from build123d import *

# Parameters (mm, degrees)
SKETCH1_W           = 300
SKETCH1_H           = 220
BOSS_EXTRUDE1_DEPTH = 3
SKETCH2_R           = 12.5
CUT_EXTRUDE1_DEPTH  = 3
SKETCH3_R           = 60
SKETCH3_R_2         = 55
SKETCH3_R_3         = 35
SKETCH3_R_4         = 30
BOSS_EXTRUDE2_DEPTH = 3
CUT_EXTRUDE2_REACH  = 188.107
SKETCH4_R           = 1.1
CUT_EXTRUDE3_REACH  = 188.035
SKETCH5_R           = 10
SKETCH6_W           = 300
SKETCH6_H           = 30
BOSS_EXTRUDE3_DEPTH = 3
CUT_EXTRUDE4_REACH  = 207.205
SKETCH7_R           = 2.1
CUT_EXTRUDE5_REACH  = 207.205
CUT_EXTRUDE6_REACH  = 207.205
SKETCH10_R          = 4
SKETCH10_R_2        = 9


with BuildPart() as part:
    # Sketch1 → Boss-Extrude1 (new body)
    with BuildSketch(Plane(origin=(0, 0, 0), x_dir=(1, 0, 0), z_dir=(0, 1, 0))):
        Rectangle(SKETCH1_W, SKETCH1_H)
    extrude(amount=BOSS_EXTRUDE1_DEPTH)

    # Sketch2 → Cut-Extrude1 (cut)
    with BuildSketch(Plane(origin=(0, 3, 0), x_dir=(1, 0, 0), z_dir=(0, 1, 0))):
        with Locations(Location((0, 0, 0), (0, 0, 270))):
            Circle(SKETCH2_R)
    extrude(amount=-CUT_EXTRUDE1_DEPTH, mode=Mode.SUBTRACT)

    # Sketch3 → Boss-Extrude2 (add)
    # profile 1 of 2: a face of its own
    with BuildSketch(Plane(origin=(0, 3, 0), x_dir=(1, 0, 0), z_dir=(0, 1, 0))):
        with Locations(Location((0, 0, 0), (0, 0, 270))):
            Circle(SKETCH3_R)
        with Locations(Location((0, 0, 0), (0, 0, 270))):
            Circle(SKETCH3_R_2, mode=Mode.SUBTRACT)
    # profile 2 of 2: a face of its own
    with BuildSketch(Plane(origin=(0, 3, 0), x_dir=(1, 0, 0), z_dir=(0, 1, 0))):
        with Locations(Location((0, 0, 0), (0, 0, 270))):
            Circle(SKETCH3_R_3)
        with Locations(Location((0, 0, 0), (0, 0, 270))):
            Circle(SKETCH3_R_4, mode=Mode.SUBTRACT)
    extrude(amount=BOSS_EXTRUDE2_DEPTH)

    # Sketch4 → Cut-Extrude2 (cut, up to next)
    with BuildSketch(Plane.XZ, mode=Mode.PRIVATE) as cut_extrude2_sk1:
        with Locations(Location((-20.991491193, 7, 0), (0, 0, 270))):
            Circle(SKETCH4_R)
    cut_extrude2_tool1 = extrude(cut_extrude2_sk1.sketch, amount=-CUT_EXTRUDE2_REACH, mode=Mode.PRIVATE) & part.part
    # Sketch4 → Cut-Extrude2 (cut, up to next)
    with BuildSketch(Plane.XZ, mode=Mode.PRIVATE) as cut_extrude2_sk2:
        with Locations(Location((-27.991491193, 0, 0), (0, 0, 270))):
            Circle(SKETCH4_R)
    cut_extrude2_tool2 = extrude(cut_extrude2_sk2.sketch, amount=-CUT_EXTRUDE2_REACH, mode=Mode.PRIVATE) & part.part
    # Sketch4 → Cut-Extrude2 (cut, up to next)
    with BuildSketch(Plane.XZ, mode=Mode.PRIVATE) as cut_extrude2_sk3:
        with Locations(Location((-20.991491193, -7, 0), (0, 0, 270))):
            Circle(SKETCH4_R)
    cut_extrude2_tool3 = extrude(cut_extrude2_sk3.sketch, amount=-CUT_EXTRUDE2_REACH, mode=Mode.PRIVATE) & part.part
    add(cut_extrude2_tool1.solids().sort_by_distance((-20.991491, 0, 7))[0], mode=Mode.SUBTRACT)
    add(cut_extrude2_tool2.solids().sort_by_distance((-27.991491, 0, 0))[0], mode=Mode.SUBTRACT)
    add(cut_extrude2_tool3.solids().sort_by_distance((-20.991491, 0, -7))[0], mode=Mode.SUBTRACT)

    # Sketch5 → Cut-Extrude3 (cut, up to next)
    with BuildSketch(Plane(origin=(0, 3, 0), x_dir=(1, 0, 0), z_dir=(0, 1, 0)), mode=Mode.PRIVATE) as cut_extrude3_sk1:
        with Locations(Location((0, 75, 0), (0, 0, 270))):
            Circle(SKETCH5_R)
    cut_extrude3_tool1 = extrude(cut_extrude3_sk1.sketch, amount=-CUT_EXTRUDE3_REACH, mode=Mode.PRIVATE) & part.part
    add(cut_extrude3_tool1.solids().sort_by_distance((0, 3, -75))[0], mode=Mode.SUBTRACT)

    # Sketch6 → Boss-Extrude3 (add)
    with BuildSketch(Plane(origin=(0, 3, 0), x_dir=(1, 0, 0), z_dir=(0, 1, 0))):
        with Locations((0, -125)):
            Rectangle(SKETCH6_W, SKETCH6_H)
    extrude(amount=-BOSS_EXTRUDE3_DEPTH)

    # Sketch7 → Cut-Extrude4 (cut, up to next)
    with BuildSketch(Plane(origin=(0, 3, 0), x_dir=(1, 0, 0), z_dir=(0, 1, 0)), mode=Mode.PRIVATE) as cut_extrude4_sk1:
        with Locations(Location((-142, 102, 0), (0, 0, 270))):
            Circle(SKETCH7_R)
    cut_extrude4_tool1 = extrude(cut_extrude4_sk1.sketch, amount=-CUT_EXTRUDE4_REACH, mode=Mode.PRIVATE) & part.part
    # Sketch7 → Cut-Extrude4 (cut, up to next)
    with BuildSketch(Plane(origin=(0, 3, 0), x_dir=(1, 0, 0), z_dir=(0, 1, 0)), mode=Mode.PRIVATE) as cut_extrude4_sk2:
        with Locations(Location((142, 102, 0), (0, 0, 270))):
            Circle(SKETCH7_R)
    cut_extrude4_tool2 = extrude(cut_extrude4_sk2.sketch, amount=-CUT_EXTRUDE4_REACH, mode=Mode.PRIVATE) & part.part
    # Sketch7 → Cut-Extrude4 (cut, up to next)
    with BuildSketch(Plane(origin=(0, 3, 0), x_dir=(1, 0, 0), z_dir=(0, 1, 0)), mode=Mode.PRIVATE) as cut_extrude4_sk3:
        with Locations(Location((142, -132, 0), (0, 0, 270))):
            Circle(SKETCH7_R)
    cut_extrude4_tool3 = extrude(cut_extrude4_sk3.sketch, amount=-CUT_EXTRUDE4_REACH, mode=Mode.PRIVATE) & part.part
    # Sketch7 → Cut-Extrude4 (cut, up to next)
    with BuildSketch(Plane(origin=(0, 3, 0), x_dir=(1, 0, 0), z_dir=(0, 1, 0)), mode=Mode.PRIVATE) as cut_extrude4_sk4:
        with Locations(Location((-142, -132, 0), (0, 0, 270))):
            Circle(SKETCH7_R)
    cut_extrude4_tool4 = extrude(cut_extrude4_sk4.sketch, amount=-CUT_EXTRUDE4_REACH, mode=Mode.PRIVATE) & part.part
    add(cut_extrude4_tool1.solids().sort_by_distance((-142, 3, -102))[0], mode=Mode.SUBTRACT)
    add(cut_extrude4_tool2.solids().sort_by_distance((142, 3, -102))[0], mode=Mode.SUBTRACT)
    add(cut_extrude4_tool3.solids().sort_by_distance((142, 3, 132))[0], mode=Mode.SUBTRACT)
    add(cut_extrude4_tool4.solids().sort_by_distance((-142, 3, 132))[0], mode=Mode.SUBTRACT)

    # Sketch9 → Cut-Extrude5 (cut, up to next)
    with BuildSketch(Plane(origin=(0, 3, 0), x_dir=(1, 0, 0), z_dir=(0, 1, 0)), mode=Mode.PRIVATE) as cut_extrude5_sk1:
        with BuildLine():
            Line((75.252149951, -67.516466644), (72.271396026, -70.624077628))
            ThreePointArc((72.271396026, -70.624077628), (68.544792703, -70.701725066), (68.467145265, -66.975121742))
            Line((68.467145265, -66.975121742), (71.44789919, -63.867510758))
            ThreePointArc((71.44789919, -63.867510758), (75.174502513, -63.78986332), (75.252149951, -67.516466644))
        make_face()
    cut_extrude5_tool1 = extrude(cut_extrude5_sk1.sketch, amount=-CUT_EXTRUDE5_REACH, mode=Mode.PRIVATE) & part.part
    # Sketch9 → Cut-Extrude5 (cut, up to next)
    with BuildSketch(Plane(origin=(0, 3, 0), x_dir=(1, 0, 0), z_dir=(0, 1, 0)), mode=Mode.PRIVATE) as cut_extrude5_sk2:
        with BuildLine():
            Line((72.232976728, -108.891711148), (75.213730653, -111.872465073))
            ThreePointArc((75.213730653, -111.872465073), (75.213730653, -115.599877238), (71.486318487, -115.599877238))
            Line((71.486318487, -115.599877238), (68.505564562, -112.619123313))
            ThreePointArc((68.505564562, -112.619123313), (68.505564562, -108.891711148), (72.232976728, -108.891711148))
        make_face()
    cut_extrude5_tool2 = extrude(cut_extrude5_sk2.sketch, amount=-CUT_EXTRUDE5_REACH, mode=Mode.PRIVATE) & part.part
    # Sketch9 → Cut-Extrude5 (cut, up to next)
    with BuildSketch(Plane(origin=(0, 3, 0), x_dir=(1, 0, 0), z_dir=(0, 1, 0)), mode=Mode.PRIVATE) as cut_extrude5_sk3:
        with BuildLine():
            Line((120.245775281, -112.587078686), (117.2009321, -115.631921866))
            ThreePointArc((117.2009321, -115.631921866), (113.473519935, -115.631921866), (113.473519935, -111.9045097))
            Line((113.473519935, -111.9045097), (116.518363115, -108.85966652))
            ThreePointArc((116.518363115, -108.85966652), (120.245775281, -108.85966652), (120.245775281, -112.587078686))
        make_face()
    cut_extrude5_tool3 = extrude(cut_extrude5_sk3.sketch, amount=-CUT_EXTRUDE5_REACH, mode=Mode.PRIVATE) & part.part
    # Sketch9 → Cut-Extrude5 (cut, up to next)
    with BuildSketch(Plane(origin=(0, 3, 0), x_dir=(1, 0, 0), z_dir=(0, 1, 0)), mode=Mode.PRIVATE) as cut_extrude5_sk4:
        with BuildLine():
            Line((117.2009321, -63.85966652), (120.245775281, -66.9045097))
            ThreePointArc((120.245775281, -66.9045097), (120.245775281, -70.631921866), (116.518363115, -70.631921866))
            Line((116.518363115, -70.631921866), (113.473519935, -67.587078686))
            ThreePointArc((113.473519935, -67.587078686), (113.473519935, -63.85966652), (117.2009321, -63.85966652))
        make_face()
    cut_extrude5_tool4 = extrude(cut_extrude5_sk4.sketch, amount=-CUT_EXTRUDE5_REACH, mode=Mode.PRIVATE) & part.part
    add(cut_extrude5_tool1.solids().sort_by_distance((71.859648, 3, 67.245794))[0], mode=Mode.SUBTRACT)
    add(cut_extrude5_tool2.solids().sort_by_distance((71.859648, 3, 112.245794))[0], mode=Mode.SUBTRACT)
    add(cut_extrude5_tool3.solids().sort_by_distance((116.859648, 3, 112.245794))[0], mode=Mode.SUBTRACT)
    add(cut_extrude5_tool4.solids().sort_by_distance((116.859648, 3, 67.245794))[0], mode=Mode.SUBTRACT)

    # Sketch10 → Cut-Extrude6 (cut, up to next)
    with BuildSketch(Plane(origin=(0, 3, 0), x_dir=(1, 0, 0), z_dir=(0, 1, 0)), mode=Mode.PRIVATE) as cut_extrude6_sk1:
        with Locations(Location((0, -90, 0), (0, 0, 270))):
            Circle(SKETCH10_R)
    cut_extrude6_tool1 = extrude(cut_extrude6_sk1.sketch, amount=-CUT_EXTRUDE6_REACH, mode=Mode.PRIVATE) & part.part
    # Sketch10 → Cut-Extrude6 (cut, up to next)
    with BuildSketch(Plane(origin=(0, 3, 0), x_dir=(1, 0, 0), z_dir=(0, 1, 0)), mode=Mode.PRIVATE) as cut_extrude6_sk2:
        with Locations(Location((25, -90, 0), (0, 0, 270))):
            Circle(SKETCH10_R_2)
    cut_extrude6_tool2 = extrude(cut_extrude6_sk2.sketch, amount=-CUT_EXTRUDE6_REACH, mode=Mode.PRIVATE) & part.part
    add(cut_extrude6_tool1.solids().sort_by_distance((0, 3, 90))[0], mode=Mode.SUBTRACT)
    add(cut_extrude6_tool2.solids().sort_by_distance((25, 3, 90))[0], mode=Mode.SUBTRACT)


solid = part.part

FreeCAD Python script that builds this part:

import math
import FreeCAD as App
import Part
import Sketcher

V = App.Vector
Q = App.Units.Quantity

doc = App.newDocument("Part")
params = doc.addObject("Spreadsheet::Sheet", "Params")
for row, (alias, value) in enumerate([
    ("sketch1_width", "300 mm"),
    ("sketch1_height", "220 mm"),
    ("pad1_length", "3 mm"),
    ("sketch2_diameter", "25 mm"),
    ("pocket1_length", "3 mm"),
    ("sketch3_diameter", "120 mm"),
    ("sketch3_diameter2", "110 mm"),
    ("sketch3_diameter3", "70 mm"),
    ("sketch3_diameter4", "60 mm"),
    ("pad2_length", "3 mm"),
    ("sketch4_diameter", "2.2 mm"),
    ("sketch5_diameter", "2.2 mm"),
    ("sketch6_diameter", "2.2 mm"),
    ("sketch7_diameter", "20 mm"),
    ("sketch8_width", "300 mm"),
    ("sketch8_height", "30 mm"),
    ("pad3_length", "3 mm"),
    ("sketch9_diameter", "4.2 mm"),
    ("sketch10_diameter", "4.2 mm"),
    ("sketch11_diameter", "4.2 mm"),
    ("sketch12_diameter", "4.2 mm"),
    ("sketch17_diameter", "8 mm"),
    ("sketch18_diameter", "18 mm"),
], start=1):
    params.set(f"A{row}", alias)
    params.set(f"B{row}", "=" + value)
    params.setAlias(f"B{row}", alias)

body = doc.addObject("PartDesign::Body", "Body")

# Sketch on XZ plane
sketch1 = doc.addObject("Sketcher::SketchObject", "Sketch")
body.addObject(sketch1)
sketch1.AttachmentSupport = (doc.XZ_Plane, [""])
sketch1.MapMode = "FlatFace"
sketch1.addGeometry([
    Part.LineSegment(V(-150, -110, 0), V(-150, 110, 0)),
    Part.LineSegment(V(-150, 110, 0), V(150, 110, 0)),
    Part.LineSegment(V(150, 110, 0), V(150, -110, 0)),
    Part.LineSegment(V(150, -110, 0), V(-150, -110, 0)),
], False)
sketch1.addConstraint([
    Sketcher.Constraint("Coincident", 0, 2, 1, 1),
    Sketcher.Constraint("Coincident", 1, 2, 2, 1),
    Sketcher.Constraint("Coincident", 2, 2, 3, 1),
    Sketcher.Constraint("Coincident", 3, 2, 0, 1),
    Sketcher.Constraint("Vertical", 0),
    Sketcher.Constraint("Horizontal", 1),
    Sketcher.Constraint("Vertical", 2),
    Sketcher.Constraint("Horizontal", 3),
    Sketcher.Constraint("Symmetric", 0, 2, 2, 2, -1, 1),
    Sketcher.Constraint("DistanceX", 1, 1, 1, 2, Q("300 mm")),
    Sketcher.Constraint("DistanceY", 0, 1, 0, 2, Q("220 mm")),
])
sketch1.setExpression("Constraints[9]", "Params.sketch1_width")
sketch1.setExpression("Constraints[10]", "Params.sketch1_height")
pad1 = doc.addObject("PartDesign::Pad", "Pad")
body.addObject(pad1)
pad1.Profile = sketch1
pad1.setExpression("Length", "Params.pad1_length")
pad1.Reversed = True

# Sketch on XZ plane
sketch2 = doc.addObject("Sketcher::SketchObject", "Sketch001")
body.addObject(sketch2)
sketch2.AttachmentSupport = (doc.XZ_Plane, [""])
sketch2.MapMode = "FlatFace"
sketch2.AttachmentOffset = App.Placement(V(0, 0, -3), App.Rotation())
sketch2.addGeometry(Part.Circle(V(0, 0, 0), V(0, 0, 1), 12), False)
sketch2.addConstraint([
    Sketcher.Constraint("Coincident", 0, 3, -1, 1),
    Sketcher.Constraint("Diameter", 0, Q("25 mm")),
])
sketch2.setExpression("Constraints[1]", "Params.sketch2_diameter")
pocket1 = doc.addObject("PartDesign::Pocket", "Pocket")
body.addObject(pocket1)
pocket1.Profile = sketch2
pocket1.setExpression("Length", "Params.pocket1_length")
pocket1.Reversed = True

# Sketch on XZ plane
sketch3 = doc.addObject("Sketcher::SketchObject", "Sketch002")
body.addObject(sketch3)
sketch3.AttachmentSupport = (doc.XZ_Plane, [""])
sketch3.MapMode = "FlatFace"
sketch3.AttachmentOffset = App.Placement(V(0, 0, -3), App.Rotation())
sketch3.addGeometry([
    Part.Circle(V(0, 0, 0), V(0, 0, 1), 60),
    Part.Circle(V(0, 0, 0), V(0, 0, 1), 55),
    Part.Circle(V(0, 0, 0), V(0, 0, 1), 35),
    Part.Circle(V(0, 0, 0), V(0, 0, 1), 30),
], False)
sketch3.addConstraint([
    Sketcher.Constraint("Coincident", 0, 3, -1, 1),
    Sketcher.Constraint("Coincident", 1, 3, -1, 1),
    Sketcher.Constraint("Coincident", 2, 3, -1, 1),
    Sketcher.Constraint("Coincident", 3, 3, -1, 1),
    Sketcher.Constraint("Diameter", 0, Q("120 mm")),
    Sketcher.Constraint("Diameter", 1, Q("110 mm")),
    Sketcher.Constraint("Diameter", 2, Q("70 mm")),
    Sketcher.Constraint("Diameter", 3, Q("60 mm")),
])
sketch3.setExpression("Constraints[4]", "Params.sketch3_diameter")
sketch3.setExpression("Constraints[5]", "Params.sketch3_diameter2")
sketch3.setExpression("Constraints[6]", "Params.sketch3_diameter3")
sketch3.setExpression("Constraints[7]", "Params.sketch3_diameter4")
pad2 = doc.addObject("PartDesign::Pad", "Pad001")
body.addObject(pad2)
pad2.Profile = sketch3
pad2.setExpression("Length", "Params.pad2_length")
pad2.Reversed = True

# Sketch on XZ plane
sketch4 = doc.addObject("Sketcher::SketchObject", "Sketch003")
body.addObject(sketch4)
sketch4.AttachmentSupport = (doc.XZ_Plane, [""])
sketch4.MapMode = "FlatFace"
sketch4.addGeometry(Part.Circle(V(-21, 7, 0), V(0, 0, 1), 1.1), False)
sketch4.addConstraint([
    Sketcher.Constraint("Diameter", 0, Q("2.2 mm")),
    Sketcher.Constraint("DistanceY", -1, 1, 0, 3, Q("7 mm")),
    Sketcher.Constraint("DistanceX", 0, 3, -1, 1, Q("20.991491 mm")),
])
sketch4.setExpression("Constraints[0]", "Params.sketch4_diameter")
pocket2 = doc.addObject("PartDesign::Pocket", "Pocket001")
body.addObject(pocket2)
pocket2.Profile = sketch4
pocket2.Type = "UpToFirst"

# Sketch on XZ plane
sketch5 = doc.addObject("Sketcher::SketchObject", "Sketch004")
body.addObject(sketch5)
sketch5.AttachmentSupport = (doc.XZ_Plane, [""])
sketch5.MapMode = "FlatFace"
sketch5.addGeometry(Part.Circle(V(-28, 0, 0), V(0, 0, 1), 1.1), False)
sketch5.addConstraint([
    Sketcher.Constraint("PointOnObject", 0, 3, -1),
    Sketcher.Constraint("Diameter", 0, Q("2.2 mm")),
    Sketcher.Constraint("DistanceX", 0, 3, -1, 1, Q("27.991491 mm")),
])
sketch5.setExpression("Constraints[1]", "Params.sketch5_diameter")
pocket3 = doc.addObject("PartDesign::Pocket", "Pocket002")
body.addObject(pocket3)
pocket3.Profile = sketch5
pocket3.Type = "UpToFirst"

# Sketch on XZ plane
sketch6 = doc.addObject("Sketcher::SketchObject", "Sketch005")
body.addObject(sketch6)
sketch6.AttachmentSupport = (doc.XZ_Plane, [""])
sketch6.MapMode = "FlatFace"
sketch6.addGeometry(Part.Circle(V(-21, -7, 0), V(0, 0, 1), 1.1), False)
sketch6.addConstraint([
    Sketcher.Constraint("Diameter", 0, Q("2.2 mm")),
    Sketcher.Constraint("DistanceY", 0, 3, -1, 1, Q("7 mm")),
    Sketcher.Constraint("DistanceX", 0, 3, -1, 1, Q("20.991491 mm")),
])
sketch6.setExpression("Constraints[0]", "Params.sketch6_diameter")
pocket4 = doc.addObject("PartDesign::Pocket", "Pocket003")
body.addObject(pocket4)
pocket4.Profile = sketch6
pocket4.Type = "UpToFirst"

# Sketch on XZ plane
sketch7 = doc.addObject("Sketcher::SketchObject", "Sketch006")
body.addObject(sketch7)
sketch7.AttachmentSupport = (doc.XZ_Plane, [""])
sketch7.MapMode = "FlatFace"
sketch7.AttachmentOffset = App.Placement(V(0, 0, -3), App.Rotation())
sketch7.addGeometry(Part.Circle(V(0, -75, 0), V(0, 0, 1), 10), False)
sketch7.addConstraint([
    Sketcher.Constraint("PointOnObject", 0, 3, -2),
    Sketcher.Constraint("Diameter", 0, Q("20 mm")),
    Sketcher.Constraint("DistanceY", 0, 3, -1, 1, Q("75 mm")),
])
sketch7.setExpression("Constraints[1]", "Params.sketch7_diameter")
pocket5 = doc.addObject("PartDesign::Pocket", "Pocket004")
body.addObject(pocket5)
pocket5.Profile = sketch7
pocket5.Type = "UpToFirst"
pocket5.Reversed = True

# Sketch on XZ plane
sketch8 = doc.addObject("Sketcher::SketchObject", "Sketch007")
body.addObject(sketch8)
sketch8.AttachmentSupport = (doc.XZ_Plane, [""])
sketch8.MapMode = "FlatFace"
sketch8.AttachmentOffset = App.Placement(V(0, 0, -3), App.Rotation())
sketch8.addGeometry([
    Part.LineSegment(V(-150, 110, 0), V(-150, 140, 0)),
    Part.LineSegment(V(-150, 140, 0), V(150, 140, 0)),
    Part.LineSegment(V(150, 140, 0), V(150, 110, 0)),
    Part.LineSegment(V(150, 110, 0), V(-150, 110, 0)),
], False)
sketch8.addConstraint([
    Sketcher.Constraint("Coincident", 0, 2, 1, 1),
    Sketcher.Constraint("Coincident", 1, 2, 2, 1),
    Sketcher.Constraint("Coincident", 2, 2, 3, 1),
    Sketcher.Constraint("Coincident", 3, 2, 0, 1),
    Sketcher.Constraint("Vertical", 0),
    Sketcher.Constraint("Horizontal", 1),
    Sketcher.Constraint("Vertical", 2),
    Sketcher.Constraint("Horizontal", 3),
    Sketcher.Constraint("DistanceX", 1, 1, 1, 2, Q("300 mm")),
    Sketcher.Constraint("DistanceY", 0, 1, 0, 2, Q("30 mm")),
    Sketcher.Constraint("DistanceX", 0, 2, -1, 1, Q("150 mm")),
    Sketcher.Constraint("DistanceY", -1, 1, 0, 2, Q("140 mm")),
])
sketch8.setExpression("Constraints[8]", "Params.sketch8_width")
sketch8.setExpression("Constraints[9]", "Params.sketch8_height")
pad3 = doc.addObject("PartDesign::Pad", "Pad002")
body.addObject(pad3)
pad3.Profile = sketch8
pad3.setExpression("Length", "Params.pad3_length")

# Sketch on XZ plane
sketch9 = doc.addObject("Sketcher::SketchObject", "Sketch008")
body.addObject(sketch9)
sketch9.AttachmentSupport = (doc.XZ_Plane, [""])
sketch9.MapMode = "FlatFace"
sketch9.AttachmentOffset = App.Placement(V(0, 0, -3), App.Rotation())
sketch9.addGeometry(Part.Circle(V(-142, -102, 0), V(0, 0, 1), 2.1), False)
sketch9.addConstraint([
    Sketcher.Constraint("Diameter", 0, Q("4.2 mm")),
    Sketcher.Constraint("DistanceX", 0, 3, -1, 1, Q("142 mm")),
    Sketcher.Constraint("DistanceY", 0, 3, -1, 1, Q("102 mm")),
])
sketch9.setExpression("Constraints[0]", "Params.sketch9_diameter")
pocket6 = doc.addObject("PartDesign::Pocket", "Pocket005")
body.addObject(pocket6)
pocket6.Profile = sketch9
pocket6.Type = "UpToFirst"
pocket6.Reversed = True

# Sketch on XZ plane
sketch10 = doc.addObject("Sketcher::SketchObject", "Sketch009")
body.addObject(sketch10)
sketch10.AttachmentSupport = (doc.XZ_Plane, [""])
sketch10.MapMode = "FlatFace"
sketch10.AttachmentOffset = App.Placement(V(0, 0, -3), App.Rotation())
sketch10.addGeometry(Part.Circle(V(142, -102, 0), V(0, 0, 1), 2.1), False)
sketch10.addConstraint([
    Sketcher.Constraint("Diameter", 0, Q("4.2 mm")),
    Sketcher.Constraint("DistanceX", -1, 1, 0, 3, Q("142 mm")),
    Sketcher.Constraint("DistanceY", 0, 3, -1, 1, Q("102 mm")),
])
sketch10.setExpression("Constraints[0]", "Params.sketch10_diameter")
pocket7 = doc.addObject("PartDesign::Pocket", "Pocket006")
body.addObject(pocket7)
pocket7.Profile = sketch10
pocket7.Type = "UpToFirst"
pocket7.Reversed = True

# Sketch on XZ plane
sketch11 = doc.addObject("Sketcher::SketchObject", "Sketch010")
body.addObject(sketch11)
sketch11.AttachmentSupport = (doc.XZ_Plane, [""])
sketch11.MapMode = "FlatFace"
sketch11.AttachmentOffset = App.Placement(V(0, 0, -3), App.Rotation())
sketch11.addGeometry(Part.Circle(V(142, 132, 0), V(0, 0, 1), 2.1), False)
sketch11.addConstraint([
    Sketcher.Constraint("Diameter", 0, Q("4.2 mm")),
    Sketcher.Constraint("DistanceX", -1, 1, 0, 3, Q("142 mm")),
    Sketcher.Constraint("DistanceY", -1, 1, 0, 3, Q("132 mm")),
])
sketch11.setExpression("Constraints[0]", "Params.sketch11_diameter")
pocket8 = doc.addObject("PartDesign::Pocket", "Pocket007")
body.addObject(pocket8)
pocket8.Profile = sketch11
pocket8.Type = "UpToFirst"
pocket8.Reversed = True

# Sketch on XZ plane
sketch12 = doc.addObject("Sketcher::SketchObject", "Sketch011")
body.addObject(sketch12)
sketch12.AttachmentSupport = (doc.XZ_Plane, [""])
sketch12.MapMode = "FlatFace"
sketch12.AttachmentOffset = App.Placement(V(0, 0, -3), App.Rotation())
sketch12.addGeometry(Part.Circle(V(-142, 132, 0), V(0, 0, 1), 2.1), False)
sketch12.addConstraint([
    Sketcher.Constraint("Diameter", 0, Q("4.2 mm")),
    Sketcher.Constraint("DistanceX", 0, 3, -1, 1, Q("142 mm")),
    Sketcher.Constraint("DistanceY", -1, 1, 0, 3, Q("132 mm")),
])
sketch12.setExpression("Constraints[0]", "Params.sketch12_diameter")
pocket9 = doc.addObject("PartDesign::Pocket", "Pocket008")
body.addObject(pocket9)
pocket9.Profile = sketch12
pocket9.Type = "UpToFirst"
pocket9.Reversed = True

# Sketch on XZ plane
sketch13 = doc.addObject("Sketcher::SketchObject", "Sketch012")
body.addObject(sketch13)
sketch13.AttachmentSupport = (doc.XZ_Plane, [""])
sketch13.MapMode = "FlatFace"
sketch13.AttachmentOffset = App.Placement(V(0, 0, -3), App.Rotation())
sketch13.addGeometry([
    Part.LineSegment(V(72.3, 70.6, 0), V(75.3, 67.5, 0)),
    Part.ArcOfCircle(Part.Circle(V(73.4, 65.7, 0), V(0, 0, 1), 2.6), math.radians(-136), math.radians(44)),
    Part.LineSegment(V(71.4, 63.9, 0), V(68.5, 67, 0)),
    Part.ArcOfCircle(Part.Circle(V(70.4, 68.8, 0), V(0, 0, 1), 2.6), math.radians(44), math.radians(224)),
], False)
sketch13.addConstraint([
    Sketcher.Constraint("Tangent", 0, 2, 1, 2),
    Sketcher.Constraint("Tangent", 1, 1, 2, 1),
    Sketcher.Constraint("Tangent", 2, 2, 3, 2),
    Sketcher.Constraint("Tangent", 3, 1, 0, 1),
    Sketcher.Constraint("Equal", 1, 3),
    Sketcher.Constraint("Radius", 1, Q("2.635678 mm")),
    Sketcher.Constraint("DistanceY", -1, 1, 3, 3, Q("68.7996 mm")),
    Sketcher.Constraint("DistanceX", -1, 1, 1, 1, Q("71.447899 mm")),
    Sketcher.Constraint("Distance", 0, Q("4.306059 mm")),
    Sketcher.Constraint("DistanceY", -1, 1, 1, 3, Q("65.691989 mm")),
])
pocket10 = doc.addObject("PartDesign::Pocket", "Pocket009")
body.addObject(pocket10)
pocket10.Profile = sketch13
pocket10.Type = "UpToFirst"
pocket10.Reversed = True

# Sketch on XZ plane
sketch14 = doc.addObject("Sketcher::SketchObject", "Sketch013")
body.addObject(sketch14)
sketch14.AttachmentSupport = (doc.XZ_Plane, [""])
sketch14.MapMode = "FlatFace"
sketch14.AttachmentOffset = App.Placement(V(0, 0, -3), App.Rotation())
sketch14.addGeometry([
    Part.LineSegment(V(75.2, 111.9, 0), V(72.2, 108.9, 0)),
    Part.ArcOfCircle(Part.Circle(V(70.4, 110.8, 0), V(0, 0, 1), 2.6), math.radians(135), math.radians(315)),
    Part.LineSegment(V(68.5, 112.6, 0), V(71.5, 115.6, 0)),
    Part.ArcOfCircle(Part.Circle(V(73.4, 113.7, 0), V(0, 0, 1), 2.6), math.radians(-45), math.radians(135)),
], False)
sketch14.addConstraint([
    Sketcher.Constraint("Tangent", 0, 2, 1, 2),
    Sketcher.Constraint("Tangent", 1, 1, 2, 1),
    Sketcher.Constraint("Tangent", 2, 2, 3, 2),
    Sketcher.Constraint("Tangent", 3, 1, 0, 1),
    Sketcher.Constraint("Equal", 1, 3),
    Sketcher.Constraint("Angle", 0, Q("-135 deg")),
    Sketcher.Constraint("Radius", 1, Q("2.635678 mm")),
    Sketcher.Constraint("DistanceX", -1, 1, 1, 3, Q("70.369271 mm")),
    Sketcher.Constraint("DistanceY", -1, 1, 3, 3, Q("113.736171 mm")),
    Sketcher.Constraint("DistanceY", -1, 1, 0, 2, Q("108.891711 mm")),
])
pocket11 = doc.addObject("PartDesign::Pocket", "Pocket010")
body.addObject(pocket11)
pocket11.Profile = sketch14
pocket11.Type = "UpToFirst"
pocket11.Reversed = True

# Sketch on XZ plane
sketch15 = doc.addObject("Sketcher::SketchObject", "Sketch014")
body.addObject(sketch15)
sketch15.AttachmentSupport = (doc.XZ_Plane, [""])
sketch15.MapMode = "FlatFace"
sketch15.AttachmentOffset = App.Placement(V(0, 0, -3), App.Rotation())
sketch15.addGeometry([
    Part.LineSegment(V(117.2, 115.6, 0), V(120.2, 112.6, 0)),
    Part.ArcOfCircle(Part.Circle(V(118.4, 110.7, 0), V(0, 0, 1), 2.6), math.radians(-135), math.radians(45)),
    Part.LineSegment(V(116.5, 108.9, 0), V(113.5, 111.9, 0)),
    Part.ArcOfCircle(Part.Circle(V(115.3, 113.8, 0), V(0, 0, 1), 2.6), math.radians(45), math.radians(225)),
], False)
sketch15.addConstraint([
    Sketcher.Constraint("Tangent", 0, 2, 1, 2),
    Sketcher.Constraint("Tangent", 1, 1, 2, 1),
    Sketcher.Constraint("Tangent", 2, 2, 3, 2),
    Sketcher.Constraint("Tangent", 3, 1, 0, 1),
    Sketcher.Constraint("Equal", 1, 3),
    Sketcher.Constraint("Angle", 0, Q("-45 deg")),
    Sketcher.Constraint("Radius", 1, Q("2.635678 mm")),
    Sketcher.Constraint("Distance", 0, Q("4.306059 mm")),
    Sketcher.Constraint("DistanceX", -1, 1, 1, 3, Q("118.382069 mm")),
    Sketcher.Constraint("DistanceY", -1, 1, 0, 2, Q("112.587079 mm")),
])
pocket12 = doc.addObject("PartDesign::Pocket", "Pocket011")
body.addObject(pocket12)
pocket12.Profile = sketch15
pocket12.Type = "UpToFirst"
pocket12.Reversed = True

# Sketch on XZ plane
sketch16 = doc.addObject("Sketcher::SketchObject", "Sketch015")
body.addObject(sketch16)
sketch16.AttachmentSupport = (doc.XZ_Plane, [""])
sketch16.MapMode = "FlatFace"
sketch16.AttachmentOffset = App.Placement(V(0, 0, -3), App.Rotation())
sketch16.addGeometry([
    Part.LineSegment(V(120.2, 66.9, 0), V(117.2, 63.9, 0)),
    Part.ArcOfCircle(Part.Circle(V(115.3, 65.7, 0), V(0, 0, 1), 2.6), math.radians(135), math.radians(315)),
    Part.LineSegment(V(113.5, 67.6, 0), V(116.5, 70.6, 0)),
    Part.ArcOfCircle(Part.Circle(V(118.4, 68.8, 0), V(0, 0, 1), 2.6), math.radians(-45), math.radians(135)),
], False)
sketch16.addConstraint([
    Sketcher.Constraint("Tangent", 0, 2, 1, 2),
    Sketcher.Constraint("Tangent", 1, 1, 2, 1),
    Sketcher.Constraint("Tangent", 2, 2, 3, 2),
    Sketcher.Constraint("Tangent", 3, 1, 0, 1),
    Sketcher.Constraint("Equal", 1, 3),
    Sketcher.Constraint("Angle", 0, Q("-135 deg")),
    Sketcher.Constraint("Radius", 1, Q("2.635678 mm")),
    Sketcher.Constraint("Distance", 0, Q("4.306059 mm")),
    Sketcher.Constraint("DistanceX", -1, 1, 3, 3, Q("118.382069 mm")),
    Sketcher.Constraint("DistanceY", -1, 1, 1, 1, Q("67.587079 mm")),
])
pocket13 = doc.addObject("PartDesign::Pocket", "Pocket012")
body.addObject(pocket13)
pocket13.Profile = sketch16
pocket13.Type = "UpToFirst"
pocket13.Reversed = True

# Sketch on XZ plane
sketch17 = doc.addObject("Sketcher::SketchObject", "Sketch016")
body.addObject(sketch17)
sketch17.AttachmentSupport = (doc.XZ_Plane, [""])
sketch17.MapMode = "FlatFace"
sketch17.AttachmentOffset = App.Placement(V(0, 0, -3), App.Rotation())
sketch17.addGeometry(Part.Circle(V(0, 90, 0), V(0, 0, 1), 4), False)
sketch17.addConstraint([
    Sketcher.Constraint("PointOnObject", 0, 3, -2),
    Sketcher.Constraint("Diameter", 0, Q("8 mm")),
    Sketcher.Constraint("DistanceY", -1, 1, 0, 3, Q("90 mm")),
])
sketch17.setExpression("Constraints[1]", "Params.sketch17_diameter")
pocket14 = doc.addObject("PartDesign::Pocket", "Pocket013")
body.addObject(pocket14)
pocket14.Profile = sketch17
pocket14.Type = "UpToFirst"
pocket14.Reversed = True

# Sketch on XZ plane
sketch18 = doc.addObject("Sketcher::SketchObject", "Sketch017")
body.addObject(sketch18)
sketch18.AttachmentSupport = (doc.XZ_Plane, [""])
sketch18.MapMode = "FlatFace"
sketch18.AttachmentOffset = App.Placement(V(0, 0, -3), App.Rotation())
sketch18.addGeometry(Part.Circle(V(25, 90, 0), V(0, 0, 1), 9), False)
sketch18.addConstraint([
    Sketcher.Constraint("Diameter", 0, Q("18 mm")),
    Sketcher.Constraint("DistanceX", -1, 1, 0, 3, Q("25 mm")),
    Sketcher.Constraint("DistanceY", -1, 1, 0, 3, Q("90 mm")),
])
sketch18.setExpression("Constraints[0]", "Params.sketch18_diameter")
pocket15 = doc.addObject("PartDesign::Pocket", "Pocket014")
body.addObject(pocket15)
pocket15.Profile = sketch18
pocket15.Type = "UpToFirst"
pocket15.Reversed = True

doc.recompute()
